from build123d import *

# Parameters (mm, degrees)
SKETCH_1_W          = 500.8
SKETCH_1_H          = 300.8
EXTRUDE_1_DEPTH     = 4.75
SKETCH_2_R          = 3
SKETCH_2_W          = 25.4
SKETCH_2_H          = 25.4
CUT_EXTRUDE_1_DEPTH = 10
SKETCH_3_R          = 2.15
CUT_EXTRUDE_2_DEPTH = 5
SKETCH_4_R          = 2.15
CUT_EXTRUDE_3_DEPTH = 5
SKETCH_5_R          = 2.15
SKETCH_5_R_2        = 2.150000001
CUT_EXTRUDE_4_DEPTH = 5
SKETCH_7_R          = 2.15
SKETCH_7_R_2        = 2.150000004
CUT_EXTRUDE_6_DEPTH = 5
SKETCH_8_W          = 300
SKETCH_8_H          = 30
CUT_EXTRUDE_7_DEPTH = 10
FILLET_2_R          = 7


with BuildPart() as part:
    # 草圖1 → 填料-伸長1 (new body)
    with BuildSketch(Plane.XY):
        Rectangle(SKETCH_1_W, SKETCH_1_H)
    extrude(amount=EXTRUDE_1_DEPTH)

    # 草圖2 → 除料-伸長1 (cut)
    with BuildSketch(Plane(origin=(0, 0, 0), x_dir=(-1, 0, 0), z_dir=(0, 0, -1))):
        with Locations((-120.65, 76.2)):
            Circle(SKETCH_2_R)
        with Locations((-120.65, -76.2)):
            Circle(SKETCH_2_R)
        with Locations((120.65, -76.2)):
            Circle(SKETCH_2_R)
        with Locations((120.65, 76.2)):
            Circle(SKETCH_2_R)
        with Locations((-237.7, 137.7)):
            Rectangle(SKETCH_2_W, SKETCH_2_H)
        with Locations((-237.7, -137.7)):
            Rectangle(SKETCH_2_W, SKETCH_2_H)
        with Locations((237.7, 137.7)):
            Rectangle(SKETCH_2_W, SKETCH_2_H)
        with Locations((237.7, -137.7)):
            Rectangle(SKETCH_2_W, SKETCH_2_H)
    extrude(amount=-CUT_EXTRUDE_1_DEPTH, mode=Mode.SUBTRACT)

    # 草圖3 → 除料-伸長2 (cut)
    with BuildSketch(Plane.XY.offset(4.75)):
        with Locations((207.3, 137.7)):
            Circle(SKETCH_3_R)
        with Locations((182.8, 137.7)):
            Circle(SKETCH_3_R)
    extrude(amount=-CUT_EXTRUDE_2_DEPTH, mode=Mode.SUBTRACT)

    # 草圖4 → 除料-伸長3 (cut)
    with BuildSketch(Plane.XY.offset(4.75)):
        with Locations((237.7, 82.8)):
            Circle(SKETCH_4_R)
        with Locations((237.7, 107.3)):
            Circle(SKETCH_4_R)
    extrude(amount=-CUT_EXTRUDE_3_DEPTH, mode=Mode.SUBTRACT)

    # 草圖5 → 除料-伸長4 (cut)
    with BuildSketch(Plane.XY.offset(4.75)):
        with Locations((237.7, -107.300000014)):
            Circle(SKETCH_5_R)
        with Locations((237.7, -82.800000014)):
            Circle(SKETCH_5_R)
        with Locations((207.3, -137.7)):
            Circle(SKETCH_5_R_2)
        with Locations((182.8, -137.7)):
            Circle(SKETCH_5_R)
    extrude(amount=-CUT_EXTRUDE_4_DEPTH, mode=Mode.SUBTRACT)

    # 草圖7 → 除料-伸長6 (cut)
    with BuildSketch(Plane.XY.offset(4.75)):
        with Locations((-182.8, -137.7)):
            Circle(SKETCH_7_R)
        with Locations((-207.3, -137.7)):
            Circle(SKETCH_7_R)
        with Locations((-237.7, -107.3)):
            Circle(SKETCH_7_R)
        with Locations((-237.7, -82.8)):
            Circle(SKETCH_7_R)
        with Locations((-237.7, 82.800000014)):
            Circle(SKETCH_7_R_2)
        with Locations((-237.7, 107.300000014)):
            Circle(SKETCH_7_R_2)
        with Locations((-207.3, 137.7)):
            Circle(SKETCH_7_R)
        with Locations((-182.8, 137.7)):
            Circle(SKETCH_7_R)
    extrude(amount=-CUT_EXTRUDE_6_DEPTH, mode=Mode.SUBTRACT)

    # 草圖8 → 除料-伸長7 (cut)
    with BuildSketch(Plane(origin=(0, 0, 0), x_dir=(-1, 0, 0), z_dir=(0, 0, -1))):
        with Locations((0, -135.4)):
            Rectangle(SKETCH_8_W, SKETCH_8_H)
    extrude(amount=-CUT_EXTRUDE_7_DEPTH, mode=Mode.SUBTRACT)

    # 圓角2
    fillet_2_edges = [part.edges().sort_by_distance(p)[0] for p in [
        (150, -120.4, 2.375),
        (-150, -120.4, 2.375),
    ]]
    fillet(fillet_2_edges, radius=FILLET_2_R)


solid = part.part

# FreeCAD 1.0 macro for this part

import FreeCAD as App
import Part
import Sketcher
Q = App.Units.Quantity


def edges_at(feature, points):
    """Names of the edges that pass closest to the given points."""
    edges = feature.Shape.Edges
    near = lambda p: min(range(len(edges)), key=lambda i: edges[i].distToShape(Part.Vertex(*p))[0])
    return sorted({f"Edge{near(p) + 1}" for p in points})

doc = App.newDocument("Part")
body = doc.addObject("PartDesign::Body", "Body")

# Sketch on XY plane
sketch1 = doc.addObject("Sketcher::SketchObject", "Sketch")
body.addObject(sketch1)
sketch1.AttachmentSupport = (doc.XY_Plane, [""])
sketch1.MapMode = "FlatFace"
sketch1.addGeometry([
    Part.LineSegment(App.Vector(-250.4, 150.4, 0), App.Vector(-250.4, -150.4, 0)),
    Part.LineSegment(App.Vector(-250.4, -150.4, 0), App.Vector(250.4, -150.4, 0)),
    Part.LineSegment(App.Vector(250.4, -150.4, 0), App.Vector(250.4, 150.4, 0)),
    Part.LineSegment(App.Vector(250.4, 150.4, 0), App.Vector(-250.4, 150.4, 0)),
], False)
sketch1.addConstraint([
    Sketcher.Constraint("Coincident", 0, 2, 1, 1),
    Sketcher.Constraint("Coincident", 1, 2, 2, 1),
    Sketcher.Constraint("Coincident", 2, 2, 3, 1),
    Sketcher.Constraint("Coincident", 3, 2, 0, 1),
    Sketcher.Constraint("Vertical", 0),
    Sketcher.Constraint("Horizontal", 1),
    Sketcher.Constraint("Vertical", 2),
    Sketcher.Constraint("Horizontal", 3),
    Sketcher.Constraint("Symmetric", 0, 2, 2, 2, -1, 1),
    Sketcher.Constraint("DistanceX", 1, 1, 1, 2, Q("500.8 mm")),
    Sketcher.Constraint("DistanceY", 0, 2, 0, 1, Q("300.8 mm")),
])
pad1 = doc.addObject("PartDesign::Pad", "Pad")
body.addObject(pad1)
pad1.Profile = sketch1
pad1.Length = 4.75

# Sketch on XY plane
sketch2 = doc.addObject("Sketcher::SketchObject", "Sketch001")
body.addObject(sketch2)
sketch2.AttachmentSupport = (doc.XY_Plane, [""])
sketch2.MapMode = "FlatFace"
sketch2.addGeometry([
    Part.Circle(App.Vector(120.65, 76.2, 0), App.Vector(0, 0, 1), 3),  # 0
    Part.Circle(App.Vector(120.65, -76.2, 0), App.Vector(0, 0, 1), 3),  # 1
    Part.Circle(App.Vector(-120.65, -76.2, 0), App.Vector(0, 0, 1), 3),  # 2
    Part.Circle(App.Vector(-120.65, 76.2, 0), App.Vector(0, 0, 1), 3),  # 3
    Part.LineSegment(App.Vector(250.4, 150.4, 0), App.Vector(250.4, 125, 0)),  # 4
    Part.LineSegment(App.Vector(250.4, 125, 0), App.Vector(225, 125, 0)),  # 5
    Part.LineSegment(App.Vector(225, 125, 0), App.Vector(225, 150.4, 0)),  # 6
    Part.LineSegment(App.Vector(225, 150.4, 0), App.Vector(250.4, 150.4, 0)),  # 7
    Part.LineSegment(App.Vector(250.4, -125, 0), App.Vector(250.4, -150.4, 0)),  # 8
    Part.LineSegment(App.Vector(250.4, -150.4, 0), App.Vector(225, -150.4, 0)),  # 9
    Part.LineSegment(App.Vector(225, -150.4, 0), App.Vector(225, -125, 0)),  # 10
    Part.LineSegment(App.Vector(225, -125, 0), App.Vector(250.4, -125, 0)),  # 11
    Part.LineSegment(App.Vector(-225, 150.4, 0), App.Vector(-225, 125, 0)),  # 12
    Part.LineSegment(App.Vector(-225, 125, 0), App.Vector(-250.4, 125, 0)),  # 13
    Part.LineSegment(App.Vector(-250.4, 125, 0), App.Vector(-250.4, 150.4, 0)),  # 14
    Part.LineSegment(App.Vector(-250.4, 150.4, 0), App.Vector(-225, 150.4, 0)),  # 15
    Part.LineSegment(App.Vector(-225, -125, 0), App.Vector(-225, -150.4, 0)),  # 16
    Part.LineSegment(App.Vector(-225, -150.4, 0), App.Vector(-250.4, -150.4, 0)),  # 17
    Part.LineSegment(App.Vector(-250.4, -150.4, 0), App.Vector(-250.4, -125, 0)),  # 18
    Part.LineSegment(App.Vector(-250.4, -125, 0), App.Vector(-225, -125, 0)),  # 19
], False)
sketch2.addConstraint([
    Sketcher.Constraint("Coincident", 4, 2, 5, 1),
    Sketcher.Constraint("Coincident", 5, 2, 6, 1),
    Sketcher.Constraint("Coincident", 6, 2, 7, 1),
    Sketcher.Constraint("Coincident", 7, 2, 4, 1),
    Sketcher.Constraint("Coincident", 8, 2, 9, 1),
    Sketcher.Constraint("Coincident", 9, 2, 10, 1),
    Sketcher.Constraint("Coincident", 10, 2, 11, 1),
    Sketcher.Constraint("Coincident", 11, 2, 8, 1),
    Sketcher.Constraint("Coincident", 12, 2, 13, 1),
    Sketcher.Constraint("Coincident", 13, 2, 14, 1),
    Sketcher.Constraint("Coincident", 14, 2, 15, 1),
    Sketcher.Constraint("Coincident", 15, 2, 12, 1),
    Sketcher.Constraint("Coincident", 16, 2, 17, 1),
    Sketcher.Constraint("Coincident", 17, 2, 18, 1),
    Sketcher.Constraint("Coincident", 18, 2, 19, 1),
    Sketcher.Constraint("Coincident", 19, 2, 16, 1),
    Sketcher.Constraint("Vertical", 4),
    Sketcher.Constraint("Horizontal", 5),
    Sketcher.Constraint("Vertical", 6),
    Sketcher.Constraint("Horizontal", 7),
    Sketcher.Constraint("Vertical", 8),
    Sketcher.Constraint("Horizontal", 9),
    Sketcher.Constraint("Vertical", 10),
    Sketcher.Constraint("Horizontal", 11),
    Sketcher.Constraint("Vertical", 12),
    Sketcher.Constraint("Horizontal", 13),
    Sketcher.Constraint("Vertical", 14),
    Sketcher.Constraint("Horizontal", 15),
    Sketcher.Constraint("Vertical", 16),
    Sketcher.Constraint("Horizontal", 17),
    Sketcher.Constraint("Vertical", 18),
    Sketcher.Constraint("Horizontal", 19),
    Sketcher.Constraint("Equal", 0, 1),
    Sketcher.Constraint("Equal", 1, 2),
    Sketcher.Constraint("Equal", 2, 3),
    Sketcher.Constraint("Symmetric", 0, 3, 2, 3, -1, 1),
    Sketcher.Constraint("Symmetric", 1, 3, 3, 3, -1, 1),
    Sketcher.Constraint("Symmetric", 10, 2, 12, 2, -1, 1),
    Sketcher.Constraint("Symmetric", 8, 2, 14, 2, -1, 1),
    Sketcher.Constraint("Symmetric", 6, 2, 16, 2, -1, 1),
    Sketcher.Constraint("Symmetric", 4, 2, 18, 2, -1, 1),
    Sketcher.Constraint("Symmetric", 1, 3, 2, 3, -2),
    Sketcher.Constraint("Symmetric", 5, 2, 12, 2, -2),
    Sketcher.Constraint("Symmetric", 7, 2, 14, 2, -2),
    Sketcher.Constraint("Equal", 19, 4),
    Sketcher.Constraint("Diameter", 0, Q("6 mm")),
    Sketcher.Constraint("DistanceX", 5, 2, 5, 1, Q("25.4 mm")),
    Sketcher.Constraint("DistanceY", -1, 1, 4, 2, Q("125 mm")),
    Sketcher.Constraint("DistanceX", -1, 1, 5, 2, Q("225 mm")),
    Sketcher.Constraint("DistanceY", -1, 1, 0, 3, Q("76.2 mm")),
    Sketcher.Constraint("DistanceX", 2, 3, 1, 3, Q("241.3 mm")),
])
pocket1 = doc.addObject("PartDesign::Pocket", "Pocket")
body.addObject(pocket1)
pocket1.Profile = sketch2
pocket1.Length = 10
pocket1.Reversed = True

# Sketch on XY plane
sketch3 = doc.addObject("Sketcher::SketchObject", "Sketch002")
body.addObject(sketch3)
sketch3.AttachmentSupport = (doc.XY_Plane, [""])
sketch3.MapMode = "FlatFace"
sketch3.AttachmentOffset = App.Placement(App.Vector(0, 0, 4.75), App.Rotation())
sketch3.addGeometry([
    Part.Circle(App.Vector(207.3, 137.7, 0), App.Vector(0, 0, 1), 2.15),
    Part.Circle(App.Vector(182.8, 137.7, 0), App.Vector(0, 0, 1), 2.15),
], False)
sketch3.addConstraint([
    Sketcher.Constraint("Equal", 0, 1),
    Sketcher.Constraint("Horizontal", 0, 3, 1, 3),
    Sketcher.Constraint("Diameter", 0, Q("4.3 mm")),
    Sketcher.Constraint("DistanceX", -1, 1, 0, 3, Q("207.3 mm")),
    Sketcher.Constraint("DistanceY", -1, 1, 0, 3, Q("137.7 mm")),
    Sketcher.Constraint("DistanceX", -1, 1, 1, 3, Q("182.8 mm")),
])
pocket2 = doc.addObject("PartDesign::Pocket", "Pocket001")
body.addObject(pocket2)
pocket2.Profile = sketch3
pocket2.Length = 5

# Sketch on XY plane
sketch4 = doc.addObject("Sketcher::SketchObject", "Sketch003")
body.addObject(sketch4)
sketch4.AttachmentSupport = (doc.XY_Plane, [""])
sketch4.MapMode = "FlatFace"
sketch4.AttachmentOffset = App.Placement(App.Vector(0, 0, 4.75), App.Rotation())
sketch4.addGeometry([
    Part.Circle(App.Vector(237.7, 82.8, 0), App.Vector(0, 0, 1), 2.15),
    Part.Circle(App.Vector(237.7, 107.3, 0), App.Vector(0, 0, 1), 2.15),
], False)
sketch4.addConstraint([
    Sketcher.Constraint("Equal", 0, 1),
    Sketcher.Constraint("Vertical", 0, 3, 1, 3),
    Sketcher.Constraint("Diameter", 0, Q("4.3 mm")),
    Sketcher.Constraint("DistanceX", -1, 1, 0, 3, Q("237.7 mm")),
    Sketcher.Constraint("DistanceY", -1, 1, 0, 3, Q("82.8 mm")),
    Sketcher.Constraint("DistanceY", -1, 1, 1, 3, Q("107.3 mm")),
])
pocket3 = doc.addObject("PartDesign::Pocket", "Pocket002")
body.addObject(pocket3)
pocket3.Profile = sketch4
pocket3.Length = 5

# Sketch on XY plane
sketch5 = doc.addObject("Sketcher::SketchObject", "Sketch004")
body.addObject(sketch5)
sketch5.AttachmentSupport = (doc.XY_Plane, [""])
sketch5.MapMode = "FlatFace"
sketch5.AttachmentOffset = App.Placement(App.Vector(0, 0, 4.75), App.Rotation())
sketch5.addGeometry([
    Part.Circle(App.Vector(237.7, -107.3, 0), App.Vector(0, 0, 1), 2.15),
    Part.Circle(App.Vector(237.7, -82.8, 0), App.Vector(0, 0, 1), 2.15),
    Part.Circle(App.Vector(207.3, -137.7, 0), App.Vector(0, 0, 1), 2.15),
    Part.Circle(App.Vector(182.8, -137.7, 0), App.Vector(0, 0, 1), 2.15),
], False)
sketch5.addConstraint([
    Sketcher.Constraint("Equal", 0, 1),
    Sketcher.Constraint("Equal", 1, 2),
    Sketcher.Constraint("Equal", 2, 3),
    Sketcher.Constraint("Horizontal", 2, 3, 3, 3),
    Sketcher.Constraint("Vertical", 0, 3, 1, 3),
    Sketcher.Constraint("Diameter", 0, Q("4.3 mm")),
    Sketcher.Constraint("DistanceX", -1, 1, 0, 3, Q("237.7 mm")),
    Sketcher.Constraint("DistanceY", 0, 3, -1, 1, Q("107.3 mm")),
    Sketcher.Constraint("DistanceY", 1, 3, -1, 1, Q("82.8 mm")),
    Sketcher.Constraint("DistanceX", -1, 1, 2, 3, Q("207.3 mm")),
    Sketcher.Constraint("DistanceY", 2, 3, -1, 1, Q("137.7 mm")),
    Sketcher.Constraint("DistanceX", -1, 1, 3, 3, Q("182.8 mm")),
])
pocket4 = doc.addObject("PartDesign::Pocket", "Pocket003")
body.addObject(pocket4)
pocket4.Profile = sketch5
pocket4.Length = 5

# Sketch on XY plane
sketch6 = doc.addObject("Sketcher::SketchObject", "Sketch005")
body.addObject(sketch6)
sketch6.AttachmentSupport = (doc.XY_Plane, [""])
sketch6.MapMode = "FlatFace"
sketch6.AttachmentOffset = App.Placement(App.Vector(0, 0, 4.75), App.Rotation())
sketch6.addGeometry([
    Part.Circle(App.Vector(-182.8, -137.7, 0), App.Vector(0, 0, 1), 2.15),  # 0
    Part.Circle(App.Vector(-207.3, -137.7, 0), App.Vector(0, 0, 1), 2.15),  # 1
    Part.Circle(App.Vector(-237.7, -107.3, 0), App.Vector(0, 0, 1), 2.15),  # 2
    Part.Circle(App.Vector(-237.7, -82.8, 0), App.Vector(0, 0, 1), 2.15),  # 3
    Part.Circle(App.Vector(-237.7, 82.8, 0), App.Vector(0, 0, 1), 2.15),  # 4
    Part.Circle(App.Vector(-237.7, 107.3, 0), App.Vector(0, 0, 1), 2.15),  # 5
    Part.Circle(App.Vector(-207.3, 137.7, 0), App.Vector(0, 0, 1), 2.15),  # 6
    Part.Circle(App.Vector(-182.8, 137.7, 0), App.Vector(0, 0, 1), 2.15),  # 7
], False)
sketch6.addConstraint([
    Sketcher.Constraint("Equal", 0, 1),
    Sketcher.Constraint("Equal", 1, 2),
    Sketcher.Constraint("Equal", 2, 3),
    Sketcher.Constraint("Equal", 3, 4),
    Sketcher.Constraint("Equal", 4, 5),
    Sketcher.Constraint("Equal", 5, 6),
    Sketcher.Constraint("Equal", 6, 7),
    Sketcher.Constraint("Symmetric", 3, 3, 4, 3, -1),
    Sketcher.Constraint("Symmetric", 2, 3, 5, 3, -1),
    Sketcher.Constraint("Symmetric", 1, 3, 6, 3, -1),
    Sketcher.Constraint("Symmetric", 0, 3, 7, 3, -1),
    Sketcher.Constraint("Horizontal", 0, 3, 1, 3),
    Sketcher.Constraint("Vertical", 2, 3, 3, 3),
    Sketcher.Constraint("Diameter", 0, Q("4.3 mm")),
    Sketcher.Constraint("DistanceY", 1, 3, 5, 3, Q("245 mm")),
    Sketcher.Constraint("DistanceX", 0, 3, -1, 1, Q("182.8 mm")),
    Sketcher.Constraint("DistanceY", 0, 3, -1, 1, Q("137.7 mm")),
    Sketcher.Constraint("DistanceX", 1, 3, -1, 1, Q("207.3 mm")),
    Sketcher.Constraint("DistanceX", 2, 3, -1, 1, Q("237.7 mm")),
    Sketcher.Constraint("DistanceY", 3, 3, -1, 1, Q("82.8 mm")),
])
pocket5 = doc.addObject("PartDesign::Pocket", "Pocket004")
body.addObject(pocket5)
pocket5.Profile = sketch6
pocket5.Length = 5

# Sketch on XY plane
sketch7 = doc.addObject("Sketcher::SketchObject", "Sketch006")
body.addObject(sketch7)
sketch7.AttachmentSupport = (doc.XY_Plane, [""])
sketch7.MapMode = "FlatFace"
sketch7.addGeometry([
    Part.LineSegment(App.Vector(150, -120.4, 0), App.Vector(150, -150.4, 0)),
    Part.LineSegment(App.Vector(150, -150.4, 0), App.Vector(-150, -150.4, 0)),
    Part.LineSegment(App.Vector(-150, -150.4, 0), App.Vector(-150, -120.4, 0)),
    Part.LineSegment(App.Vector(-150, -120.4, 0), App.Vector(150, -120.4, 0)),
], False)
sketch7.addConstraint([
    Sketcher.Constraint("Coincident", 0, 2, 1, 1),
    Sketcher.Constraint("Coincident", 1, 2, 2, 1),
    Sketcher.Constraint("Coincident", 2, 2, 3, 1),
    Sketcher.Constraint("Coincident", 3, 2, 0, 1),
    Sketcher.Constraint("Vertical", 0),
    Sketcher.Constraint("Horizontal", 1),
    Sketcher.Constraint("Vertical", 2),
    Sketcher.Constraint("Horizontal", 3),
    Sketcher.Constraint("DistanceX", 1, 2, 1, 1, Q("300 mm")),
    Sketcher.Constraint("DistanceY", 0, 2, 0, 1, Q("30 mm")),
    Sketcher.Constraint("DistanceX", -1, 1, 0, 2, Q("150 mm")),
    Sketcher.Constraint("DistanceY", 0, 2, -1, 1, Q("150.4 mm")),
])
pocket6 = doc.addObject("PartDesign::Pocket", "Pocket005")
body.addObject(pocket6)
pocket6.Profile = sketch7
pocket6.Length = 10
pocket6.Reversed = True
doc.recompute()

fillet = doc.addObject("PartDesign::Fillet", "Fillet")
body.addObject(fillet)
fillet.Base = (pocket6, edges_at(pocket6, [(150, -120.4, 2.375), (-150, -120.4, 2.375)]))
fillet.Radius = 7

doc.recompute()
